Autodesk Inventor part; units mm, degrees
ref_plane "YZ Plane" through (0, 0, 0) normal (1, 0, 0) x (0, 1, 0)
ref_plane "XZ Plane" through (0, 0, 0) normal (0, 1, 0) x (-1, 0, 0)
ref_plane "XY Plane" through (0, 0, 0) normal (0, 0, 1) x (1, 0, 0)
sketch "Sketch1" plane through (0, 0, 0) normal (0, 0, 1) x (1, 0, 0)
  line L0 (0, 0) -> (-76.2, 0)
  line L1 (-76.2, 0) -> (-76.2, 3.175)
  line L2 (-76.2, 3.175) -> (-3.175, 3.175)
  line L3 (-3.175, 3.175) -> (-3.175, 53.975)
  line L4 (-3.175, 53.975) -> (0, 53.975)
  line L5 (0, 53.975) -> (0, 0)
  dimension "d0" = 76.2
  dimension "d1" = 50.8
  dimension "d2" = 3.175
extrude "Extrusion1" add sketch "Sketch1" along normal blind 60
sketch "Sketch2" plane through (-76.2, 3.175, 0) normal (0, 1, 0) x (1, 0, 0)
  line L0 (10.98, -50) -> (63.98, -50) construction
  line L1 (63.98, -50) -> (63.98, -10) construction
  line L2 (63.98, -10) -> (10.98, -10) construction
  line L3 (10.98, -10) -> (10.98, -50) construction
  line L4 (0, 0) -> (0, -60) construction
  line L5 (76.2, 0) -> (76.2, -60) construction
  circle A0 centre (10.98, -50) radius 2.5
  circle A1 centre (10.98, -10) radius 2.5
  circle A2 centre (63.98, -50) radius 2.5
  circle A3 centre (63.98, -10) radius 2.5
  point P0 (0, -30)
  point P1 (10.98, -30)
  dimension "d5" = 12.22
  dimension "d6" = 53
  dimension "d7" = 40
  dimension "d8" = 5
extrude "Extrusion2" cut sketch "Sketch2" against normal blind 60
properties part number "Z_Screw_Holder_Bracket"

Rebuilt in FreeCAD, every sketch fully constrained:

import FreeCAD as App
import Part
import Sketcher
from FreeCAD import Vector
Q = App.Units.Quantity

doc = App.newDocument("Part")
body = doc.addObject("PartDesign::Body", "Body")

# Sketch on XY plane
sketch1 = doc.addObject("Sketcher::SketchObject", "Sketch")
body.addObject(sketch1)
sketch1.AttachmentSupport = (doc.XY_Plane, [""])
sketch1.MapMode = "FlatFace"
sketch1.addGeometry([
    Part.LineSegment(Vector(-76.2, 0, 0), Vector(0, 0, 0)),  # 0
    Part.LineSegment(Vector(0, 0, 0), Vector(0, 54, 0)),  # 1
    Part.LineSegment(Vector(0, 54, 0), Vector(-3.2, 54, 0)),  # 2
    Part.LineSegment(Vector(-3.2, 54, 0), Vector(-3.2, 3.2, 0)),  # 3
    Part.LineSegment(Vector(-3.2, 3.2, 0), Vector(-76.2, 3.2, 0)),  # 4
    Part.LineSegment(Vector(-76.2, 3.2, 0), Vector(-76.2, 0, 0)),  # 5
], False)
sketch1.addConstraint([
    Sketcher.Constraint("Coincident", 0, 2, 1, 1),
    Sketcher.Constraint("Coincident", 1, 2, 2, 1),
    Sketcher.Constraint("Coincident", 2, 2, 3, 1),
    Sketcher.Constraint("Coincident", 3, 2, 4, 1),
    Sketcher.Constraint("Coincident", 4, 2, 5, 1),
    Sketcher.Constraint("Coincident", 5, 2, 0, 1),
    Sketcher.Constraint("Horizontal", 0),
    Sketcher.Constraint("Vertical", 1),
    Sketcher.Constraint("Horizontal", 2),
    Sketcher.Constraint("Vertical", 3),
    Sketcher.Constraint("Horizontal", 4),
    Sketcher.Constraint("Vertical", 5),
    Sketcher.Constraint("Coincident", 0, 2, -1, 1),
    Sketcher.Constraint("Equal", 2, 5),
    Sketcher.Constraint("DistanceX", 0, 1, 0, 2, Q("3 in")),
    Sketcher.Constraint("DistanceY", 3, 2, 3, 1, Q("2 in")),
    Sketcher.Constraint("DistanceX", 2, 2, 2, 1, Q("0.125 in")),
])
pad1 = doc.addObject("PartDesign::Pad", "Pad")
body.addObject(pad1)
pad1.Profile = sketch1
pad1.Length = Q("2.3622047 in")

# Sketch on XZ plane
sketch2 = doc.addObject("Sketcher::SketchObject", "Sketch001")
body.addObject(sketch2)
sketch2.AttachmentSupport = (doc.XZ_Plane, [""])
sketch2.MapMode = "FlatFace"
sketch2.AttachmentOffset = App.Placement(Vector(0, 0, -0.125 * 25.4), App.Rotation())
sketch2.addGeometry([
    Part.Circle(Vector(-65.2, 50, 0), Vector(0, 0, 1), 2.5),
    Part.Circle(Vector(-65.2, 10, 0), Vector(0, 0, 1), 2.5),
    Part.Circle(Vector(-12.2, 50, 0), Vector(0, 0, 1), 2.5),
    Part.Circle(Vector(-12.2, 10, 0), Vector(0, 0, 1), 2.5),
], False)
sketch2.addConstraint([
    Sketcher.Constraint("Equal", 0, 1),
    Sketcher.Constraint("Equal", 1, 2),
    Sketcher.Constraint("Equal", 2, 3),
    Sketcher.Constraint("Horizontal", 0, 3, 2, 3),
    Sketcher.Constraint("Horizontal", 1, 3, 3, 3),
    Sketcher.Constraint("Vertical", 0, 3, 1, 3),
    Sketcher.Constraint("Vertical", 2, 3, 3, 3),
    Sketcher.Constraint("Diameter", 0, 5.0),
    Sketcher.Constraint("DistanceX", 2, 3, -1, 1, Q("0.4811 in")),
    Sketcher.Constraint("DistanceY", 1, 3, 0, 3, Q("1.5748 in")),
    Sketcher.Constraint("DistanceX", 0, 3, 2, 3, 53.0),
    Sketcher.Constraint("DistanceY", -1, 1, 0, 3, Q("1.9685 in")),
])
pocket1 = doc.addObject("PartDesign::Pocket", "Pocket")
body.addObject(pocket1)
pocket1.Profile = sketch2
pocket1.Length = Q("2.3622047 in")
pocket1.Reversed = True

doc.recompute()
